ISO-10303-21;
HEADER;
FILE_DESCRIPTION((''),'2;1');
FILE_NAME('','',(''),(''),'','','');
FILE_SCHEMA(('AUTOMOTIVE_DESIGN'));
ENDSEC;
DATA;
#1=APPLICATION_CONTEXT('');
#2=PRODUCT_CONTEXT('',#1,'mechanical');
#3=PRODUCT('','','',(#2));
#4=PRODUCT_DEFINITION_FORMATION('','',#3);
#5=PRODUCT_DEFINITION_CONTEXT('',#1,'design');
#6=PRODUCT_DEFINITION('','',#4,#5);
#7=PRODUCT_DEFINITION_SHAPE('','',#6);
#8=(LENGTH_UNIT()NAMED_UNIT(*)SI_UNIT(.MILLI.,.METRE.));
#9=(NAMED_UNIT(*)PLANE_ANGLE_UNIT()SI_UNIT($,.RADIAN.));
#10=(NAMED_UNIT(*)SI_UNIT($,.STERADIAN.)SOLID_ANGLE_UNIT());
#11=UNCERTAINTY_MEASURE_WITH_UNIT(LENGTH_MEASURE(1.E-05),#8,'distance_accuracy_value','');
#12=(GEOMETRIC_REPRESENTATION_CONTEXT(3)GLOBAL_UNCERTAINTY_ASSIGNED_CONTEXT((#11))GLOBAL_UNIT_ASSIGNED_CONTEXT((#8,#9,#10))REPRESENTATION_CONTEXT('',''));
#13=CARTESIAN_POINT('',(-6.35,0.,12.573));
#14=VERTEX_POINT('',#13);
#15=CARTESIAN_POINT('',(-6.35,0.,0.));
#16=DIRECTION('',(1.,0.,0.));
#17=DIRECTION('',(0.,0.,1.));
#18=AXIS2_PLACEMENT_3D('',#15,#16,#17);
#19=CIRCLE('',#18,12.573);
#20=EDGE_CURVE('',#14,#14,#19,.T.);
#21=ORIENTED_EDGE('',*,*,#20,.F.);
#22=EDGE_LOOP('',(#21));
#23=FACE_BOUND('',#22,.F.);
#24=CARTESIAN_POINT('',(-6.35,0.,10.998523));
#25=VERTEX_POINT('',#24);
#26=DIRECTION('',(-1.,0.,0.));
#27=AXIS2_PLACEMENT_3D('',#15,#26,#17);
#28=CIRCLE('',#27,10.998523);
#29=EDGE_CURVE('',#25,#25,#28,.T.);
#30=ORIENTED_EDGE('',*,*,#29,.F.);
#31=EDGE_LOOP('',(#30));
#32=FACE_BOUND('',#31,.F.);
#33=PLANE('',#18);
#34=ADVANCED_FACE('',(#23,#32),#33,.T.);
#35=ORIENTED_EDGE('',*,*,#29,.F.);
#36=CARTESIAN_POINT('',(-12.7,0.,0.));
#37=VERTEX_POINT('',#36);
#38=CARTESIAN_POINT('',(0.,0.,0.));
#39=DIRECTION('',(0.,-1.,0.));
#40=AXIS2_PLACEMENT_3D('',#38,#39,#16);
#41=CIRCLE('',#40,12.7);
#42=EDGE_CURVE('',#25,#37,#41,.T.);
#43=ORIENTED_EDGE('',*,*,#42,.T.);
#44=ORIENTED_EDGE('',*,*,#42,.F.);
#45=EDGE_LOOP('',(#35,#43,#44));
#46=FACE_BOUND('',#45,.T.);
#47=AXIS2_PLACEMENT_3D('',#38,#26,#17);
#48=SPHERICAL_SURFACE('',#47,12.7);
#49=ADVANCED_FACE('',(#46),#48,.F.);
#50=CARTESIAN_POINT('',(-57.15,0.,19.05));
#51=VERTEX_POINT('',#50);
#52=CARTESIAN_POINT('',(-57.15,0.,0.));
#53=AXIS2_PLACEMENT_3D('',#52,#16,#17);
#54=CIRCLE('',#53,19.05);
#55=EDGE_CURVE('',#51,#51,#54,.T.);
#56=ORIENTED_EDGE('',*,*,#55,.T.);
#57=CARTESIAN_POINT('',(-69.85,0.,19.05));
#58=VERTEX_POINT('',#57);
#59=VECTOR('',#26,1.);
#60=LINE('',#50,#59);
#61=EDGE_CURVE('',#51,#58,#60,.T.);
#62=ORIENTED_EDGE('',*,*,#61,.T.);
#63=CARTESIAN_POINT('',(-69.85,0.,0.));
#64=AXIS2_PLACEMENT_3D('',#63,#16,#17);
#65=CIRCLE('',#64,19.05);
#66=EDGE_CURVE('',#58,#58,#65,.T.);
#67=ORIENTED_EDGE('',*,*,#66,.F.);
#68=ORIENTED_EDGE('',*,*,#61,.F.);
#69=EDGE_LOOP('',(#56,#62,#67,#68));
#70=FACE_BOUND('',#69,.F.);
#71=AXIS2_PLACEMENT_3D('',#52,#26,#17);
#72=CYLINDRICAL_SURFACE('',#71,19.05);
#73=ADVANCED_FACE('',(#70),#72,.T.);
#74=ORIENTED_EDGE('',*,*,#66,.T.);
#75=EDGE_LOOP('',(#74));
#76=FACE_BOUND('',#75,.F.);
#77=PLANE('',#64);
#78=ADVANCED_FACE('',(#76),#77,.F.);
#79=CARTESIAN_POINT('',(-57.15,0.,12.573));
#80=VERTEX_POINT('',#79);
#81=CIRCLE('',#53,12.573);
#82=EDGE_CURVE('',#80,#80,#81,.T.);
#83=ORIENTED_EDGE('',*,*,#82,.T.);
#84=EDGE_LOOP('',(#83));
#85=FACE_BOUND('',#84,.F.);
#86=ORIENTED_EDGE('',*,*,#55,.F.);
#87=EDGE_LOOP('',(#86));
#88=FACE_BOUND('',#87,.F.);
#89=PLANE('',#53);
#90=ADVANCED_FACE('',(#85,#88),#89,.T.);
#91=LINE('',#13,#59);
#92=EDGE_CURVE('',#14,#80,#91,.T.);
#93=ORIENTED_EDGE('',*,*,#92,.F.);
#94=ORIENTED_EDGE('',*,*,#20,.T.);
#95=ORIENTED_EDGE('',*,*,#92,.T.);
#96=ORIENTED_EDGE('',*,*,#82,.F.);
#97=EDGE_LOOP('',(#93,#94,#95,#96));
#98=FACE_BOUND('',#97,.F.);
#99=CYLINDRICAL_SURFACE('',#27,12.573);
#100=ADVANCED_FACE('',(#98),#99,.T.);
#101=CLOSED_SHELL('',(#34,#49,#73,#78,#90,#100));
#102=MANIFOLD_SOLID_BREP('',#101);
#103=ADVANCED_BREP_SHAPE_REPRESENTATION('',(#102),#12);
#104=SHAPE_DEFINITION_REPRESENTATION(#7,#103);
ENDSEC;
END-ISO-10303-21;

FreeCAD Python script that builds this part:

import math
import FreeCAD as App
import Part
import Sketcher

V = App.Vector
Q = App.Units.Quantity


def add_polygon(sketch, points):
    """Adds a closed chain of lines whose ends are joined by coincident constraints."""
    first, n = sketch.GeometryCount, len(points)
    for a, b in zip(points, points[1:] + points[:1]):
        sketch.addGeometry(Part.LineSegment(App.Vector(*a, 0), App.Vector(*b, 0)), False)
    for i in range(n):
        sketch.addConstraint(Sketcher.Constraint("Coincident", first + i, 2, first + (i + 1) % n, 1))

doc = App.newDocument("Part")
body = doc.addObject("PartDesign::Body", "Body")

# Sketch on XZ plane
sketch1 = doc.addObject("Sketcher::SketchObject", "Sketch")
body.addObject(sketch1)
sketch1.AttachmentSupport = (doc.XZ_Plane, [""])
sketch1.MapMode = "FlatFace"
add_polygon(sketch1, [(-70, 19), (-70, 0), (-6, 0), (-6, 13), (-57, 13), (-57, 19)])  # lines 0-5
sketch1.addConstraint([
    Sketcher.Constraint("Vertical", 0),
    Sketcher.Constraint("Horizontal", 1),
    Sketcher.Constraint("Vertical", 2),
    Sketcher.Constraint("Horizontal", 3),
    Sketcher.Constraint("Vertical", 4),
    Sketcher.Constraint("Horizontal", 5),
    Sketcher.Constraint("PointOnObject", 0, 2, -1),
    Sketcher.Constraint("DistanceX", 3, 2, 3, 1, Q("2 in")),
    Sketcher.Constraint("DistanceX", 1, 1, 1, 2, Q("2.5 in")),
    Sketcher.Constraint("DistanceY", 0, 2, 0, 1, Q("0.75 in")),
    Sketcher.Constraint("DistanceY", 2, 1, 2, 2, Q("0.495 in")),
    Sketcher.Constraint("DistanceX", 0, 2, -1, 1, Q("2.75 in")),
])
revolution = doc.addObject("PartDesign::Revolution", "Revolution")
body.addObject(revolution)
revolution.Profile = sketch1
revolution.ReferenceAxis = (sketch1, ["H_Axis"])
revolution.Angle = 360

# Sketch on XZ plane
sketch2 = doc.addObject("Sketcher::SketchObject", "Sketch001")
body.addObject(sketch2)
sketch2.AttachmentSupport = (doc.XZ_Plane, [""])
sketch2.MapMode = "FlatFace"
sketch2.addGeometry([
    Part.LineSegment(V(-13, 0, 0), V(13, 0, 0)),
    Part.ArcOfCircle(Part.Circle(V(0, 0, 0), V(0, 0, 1), 13), math.radians(0), math.radians(180)),
], False)
sketch2.addConstraint([
    Sketcher.Constraint("Coincident", 0, 1, 1, 2),
    Sketcher.Constraint("Coincident", 1, 1, 0, 2),
    Sketcher.Constraint("Horizontal", 0),
    Sketcher.Constraint("Coincident", 1, 3, -1, 1),
    Sketcher.Constraint("PointOnObject", 0, 1, -1),
    Sketcher.Constraint("Radius", 1, Q("0.5 in")),
])
groove = doc.addObject("PartDesign::Groove", "Groove")
body.addObject(groove)
groove.Profile = sketch2
groove.ReferenceAxis = (sketch2, ["H_Axis"])
groove.Angle = 360

doc.recompute()
